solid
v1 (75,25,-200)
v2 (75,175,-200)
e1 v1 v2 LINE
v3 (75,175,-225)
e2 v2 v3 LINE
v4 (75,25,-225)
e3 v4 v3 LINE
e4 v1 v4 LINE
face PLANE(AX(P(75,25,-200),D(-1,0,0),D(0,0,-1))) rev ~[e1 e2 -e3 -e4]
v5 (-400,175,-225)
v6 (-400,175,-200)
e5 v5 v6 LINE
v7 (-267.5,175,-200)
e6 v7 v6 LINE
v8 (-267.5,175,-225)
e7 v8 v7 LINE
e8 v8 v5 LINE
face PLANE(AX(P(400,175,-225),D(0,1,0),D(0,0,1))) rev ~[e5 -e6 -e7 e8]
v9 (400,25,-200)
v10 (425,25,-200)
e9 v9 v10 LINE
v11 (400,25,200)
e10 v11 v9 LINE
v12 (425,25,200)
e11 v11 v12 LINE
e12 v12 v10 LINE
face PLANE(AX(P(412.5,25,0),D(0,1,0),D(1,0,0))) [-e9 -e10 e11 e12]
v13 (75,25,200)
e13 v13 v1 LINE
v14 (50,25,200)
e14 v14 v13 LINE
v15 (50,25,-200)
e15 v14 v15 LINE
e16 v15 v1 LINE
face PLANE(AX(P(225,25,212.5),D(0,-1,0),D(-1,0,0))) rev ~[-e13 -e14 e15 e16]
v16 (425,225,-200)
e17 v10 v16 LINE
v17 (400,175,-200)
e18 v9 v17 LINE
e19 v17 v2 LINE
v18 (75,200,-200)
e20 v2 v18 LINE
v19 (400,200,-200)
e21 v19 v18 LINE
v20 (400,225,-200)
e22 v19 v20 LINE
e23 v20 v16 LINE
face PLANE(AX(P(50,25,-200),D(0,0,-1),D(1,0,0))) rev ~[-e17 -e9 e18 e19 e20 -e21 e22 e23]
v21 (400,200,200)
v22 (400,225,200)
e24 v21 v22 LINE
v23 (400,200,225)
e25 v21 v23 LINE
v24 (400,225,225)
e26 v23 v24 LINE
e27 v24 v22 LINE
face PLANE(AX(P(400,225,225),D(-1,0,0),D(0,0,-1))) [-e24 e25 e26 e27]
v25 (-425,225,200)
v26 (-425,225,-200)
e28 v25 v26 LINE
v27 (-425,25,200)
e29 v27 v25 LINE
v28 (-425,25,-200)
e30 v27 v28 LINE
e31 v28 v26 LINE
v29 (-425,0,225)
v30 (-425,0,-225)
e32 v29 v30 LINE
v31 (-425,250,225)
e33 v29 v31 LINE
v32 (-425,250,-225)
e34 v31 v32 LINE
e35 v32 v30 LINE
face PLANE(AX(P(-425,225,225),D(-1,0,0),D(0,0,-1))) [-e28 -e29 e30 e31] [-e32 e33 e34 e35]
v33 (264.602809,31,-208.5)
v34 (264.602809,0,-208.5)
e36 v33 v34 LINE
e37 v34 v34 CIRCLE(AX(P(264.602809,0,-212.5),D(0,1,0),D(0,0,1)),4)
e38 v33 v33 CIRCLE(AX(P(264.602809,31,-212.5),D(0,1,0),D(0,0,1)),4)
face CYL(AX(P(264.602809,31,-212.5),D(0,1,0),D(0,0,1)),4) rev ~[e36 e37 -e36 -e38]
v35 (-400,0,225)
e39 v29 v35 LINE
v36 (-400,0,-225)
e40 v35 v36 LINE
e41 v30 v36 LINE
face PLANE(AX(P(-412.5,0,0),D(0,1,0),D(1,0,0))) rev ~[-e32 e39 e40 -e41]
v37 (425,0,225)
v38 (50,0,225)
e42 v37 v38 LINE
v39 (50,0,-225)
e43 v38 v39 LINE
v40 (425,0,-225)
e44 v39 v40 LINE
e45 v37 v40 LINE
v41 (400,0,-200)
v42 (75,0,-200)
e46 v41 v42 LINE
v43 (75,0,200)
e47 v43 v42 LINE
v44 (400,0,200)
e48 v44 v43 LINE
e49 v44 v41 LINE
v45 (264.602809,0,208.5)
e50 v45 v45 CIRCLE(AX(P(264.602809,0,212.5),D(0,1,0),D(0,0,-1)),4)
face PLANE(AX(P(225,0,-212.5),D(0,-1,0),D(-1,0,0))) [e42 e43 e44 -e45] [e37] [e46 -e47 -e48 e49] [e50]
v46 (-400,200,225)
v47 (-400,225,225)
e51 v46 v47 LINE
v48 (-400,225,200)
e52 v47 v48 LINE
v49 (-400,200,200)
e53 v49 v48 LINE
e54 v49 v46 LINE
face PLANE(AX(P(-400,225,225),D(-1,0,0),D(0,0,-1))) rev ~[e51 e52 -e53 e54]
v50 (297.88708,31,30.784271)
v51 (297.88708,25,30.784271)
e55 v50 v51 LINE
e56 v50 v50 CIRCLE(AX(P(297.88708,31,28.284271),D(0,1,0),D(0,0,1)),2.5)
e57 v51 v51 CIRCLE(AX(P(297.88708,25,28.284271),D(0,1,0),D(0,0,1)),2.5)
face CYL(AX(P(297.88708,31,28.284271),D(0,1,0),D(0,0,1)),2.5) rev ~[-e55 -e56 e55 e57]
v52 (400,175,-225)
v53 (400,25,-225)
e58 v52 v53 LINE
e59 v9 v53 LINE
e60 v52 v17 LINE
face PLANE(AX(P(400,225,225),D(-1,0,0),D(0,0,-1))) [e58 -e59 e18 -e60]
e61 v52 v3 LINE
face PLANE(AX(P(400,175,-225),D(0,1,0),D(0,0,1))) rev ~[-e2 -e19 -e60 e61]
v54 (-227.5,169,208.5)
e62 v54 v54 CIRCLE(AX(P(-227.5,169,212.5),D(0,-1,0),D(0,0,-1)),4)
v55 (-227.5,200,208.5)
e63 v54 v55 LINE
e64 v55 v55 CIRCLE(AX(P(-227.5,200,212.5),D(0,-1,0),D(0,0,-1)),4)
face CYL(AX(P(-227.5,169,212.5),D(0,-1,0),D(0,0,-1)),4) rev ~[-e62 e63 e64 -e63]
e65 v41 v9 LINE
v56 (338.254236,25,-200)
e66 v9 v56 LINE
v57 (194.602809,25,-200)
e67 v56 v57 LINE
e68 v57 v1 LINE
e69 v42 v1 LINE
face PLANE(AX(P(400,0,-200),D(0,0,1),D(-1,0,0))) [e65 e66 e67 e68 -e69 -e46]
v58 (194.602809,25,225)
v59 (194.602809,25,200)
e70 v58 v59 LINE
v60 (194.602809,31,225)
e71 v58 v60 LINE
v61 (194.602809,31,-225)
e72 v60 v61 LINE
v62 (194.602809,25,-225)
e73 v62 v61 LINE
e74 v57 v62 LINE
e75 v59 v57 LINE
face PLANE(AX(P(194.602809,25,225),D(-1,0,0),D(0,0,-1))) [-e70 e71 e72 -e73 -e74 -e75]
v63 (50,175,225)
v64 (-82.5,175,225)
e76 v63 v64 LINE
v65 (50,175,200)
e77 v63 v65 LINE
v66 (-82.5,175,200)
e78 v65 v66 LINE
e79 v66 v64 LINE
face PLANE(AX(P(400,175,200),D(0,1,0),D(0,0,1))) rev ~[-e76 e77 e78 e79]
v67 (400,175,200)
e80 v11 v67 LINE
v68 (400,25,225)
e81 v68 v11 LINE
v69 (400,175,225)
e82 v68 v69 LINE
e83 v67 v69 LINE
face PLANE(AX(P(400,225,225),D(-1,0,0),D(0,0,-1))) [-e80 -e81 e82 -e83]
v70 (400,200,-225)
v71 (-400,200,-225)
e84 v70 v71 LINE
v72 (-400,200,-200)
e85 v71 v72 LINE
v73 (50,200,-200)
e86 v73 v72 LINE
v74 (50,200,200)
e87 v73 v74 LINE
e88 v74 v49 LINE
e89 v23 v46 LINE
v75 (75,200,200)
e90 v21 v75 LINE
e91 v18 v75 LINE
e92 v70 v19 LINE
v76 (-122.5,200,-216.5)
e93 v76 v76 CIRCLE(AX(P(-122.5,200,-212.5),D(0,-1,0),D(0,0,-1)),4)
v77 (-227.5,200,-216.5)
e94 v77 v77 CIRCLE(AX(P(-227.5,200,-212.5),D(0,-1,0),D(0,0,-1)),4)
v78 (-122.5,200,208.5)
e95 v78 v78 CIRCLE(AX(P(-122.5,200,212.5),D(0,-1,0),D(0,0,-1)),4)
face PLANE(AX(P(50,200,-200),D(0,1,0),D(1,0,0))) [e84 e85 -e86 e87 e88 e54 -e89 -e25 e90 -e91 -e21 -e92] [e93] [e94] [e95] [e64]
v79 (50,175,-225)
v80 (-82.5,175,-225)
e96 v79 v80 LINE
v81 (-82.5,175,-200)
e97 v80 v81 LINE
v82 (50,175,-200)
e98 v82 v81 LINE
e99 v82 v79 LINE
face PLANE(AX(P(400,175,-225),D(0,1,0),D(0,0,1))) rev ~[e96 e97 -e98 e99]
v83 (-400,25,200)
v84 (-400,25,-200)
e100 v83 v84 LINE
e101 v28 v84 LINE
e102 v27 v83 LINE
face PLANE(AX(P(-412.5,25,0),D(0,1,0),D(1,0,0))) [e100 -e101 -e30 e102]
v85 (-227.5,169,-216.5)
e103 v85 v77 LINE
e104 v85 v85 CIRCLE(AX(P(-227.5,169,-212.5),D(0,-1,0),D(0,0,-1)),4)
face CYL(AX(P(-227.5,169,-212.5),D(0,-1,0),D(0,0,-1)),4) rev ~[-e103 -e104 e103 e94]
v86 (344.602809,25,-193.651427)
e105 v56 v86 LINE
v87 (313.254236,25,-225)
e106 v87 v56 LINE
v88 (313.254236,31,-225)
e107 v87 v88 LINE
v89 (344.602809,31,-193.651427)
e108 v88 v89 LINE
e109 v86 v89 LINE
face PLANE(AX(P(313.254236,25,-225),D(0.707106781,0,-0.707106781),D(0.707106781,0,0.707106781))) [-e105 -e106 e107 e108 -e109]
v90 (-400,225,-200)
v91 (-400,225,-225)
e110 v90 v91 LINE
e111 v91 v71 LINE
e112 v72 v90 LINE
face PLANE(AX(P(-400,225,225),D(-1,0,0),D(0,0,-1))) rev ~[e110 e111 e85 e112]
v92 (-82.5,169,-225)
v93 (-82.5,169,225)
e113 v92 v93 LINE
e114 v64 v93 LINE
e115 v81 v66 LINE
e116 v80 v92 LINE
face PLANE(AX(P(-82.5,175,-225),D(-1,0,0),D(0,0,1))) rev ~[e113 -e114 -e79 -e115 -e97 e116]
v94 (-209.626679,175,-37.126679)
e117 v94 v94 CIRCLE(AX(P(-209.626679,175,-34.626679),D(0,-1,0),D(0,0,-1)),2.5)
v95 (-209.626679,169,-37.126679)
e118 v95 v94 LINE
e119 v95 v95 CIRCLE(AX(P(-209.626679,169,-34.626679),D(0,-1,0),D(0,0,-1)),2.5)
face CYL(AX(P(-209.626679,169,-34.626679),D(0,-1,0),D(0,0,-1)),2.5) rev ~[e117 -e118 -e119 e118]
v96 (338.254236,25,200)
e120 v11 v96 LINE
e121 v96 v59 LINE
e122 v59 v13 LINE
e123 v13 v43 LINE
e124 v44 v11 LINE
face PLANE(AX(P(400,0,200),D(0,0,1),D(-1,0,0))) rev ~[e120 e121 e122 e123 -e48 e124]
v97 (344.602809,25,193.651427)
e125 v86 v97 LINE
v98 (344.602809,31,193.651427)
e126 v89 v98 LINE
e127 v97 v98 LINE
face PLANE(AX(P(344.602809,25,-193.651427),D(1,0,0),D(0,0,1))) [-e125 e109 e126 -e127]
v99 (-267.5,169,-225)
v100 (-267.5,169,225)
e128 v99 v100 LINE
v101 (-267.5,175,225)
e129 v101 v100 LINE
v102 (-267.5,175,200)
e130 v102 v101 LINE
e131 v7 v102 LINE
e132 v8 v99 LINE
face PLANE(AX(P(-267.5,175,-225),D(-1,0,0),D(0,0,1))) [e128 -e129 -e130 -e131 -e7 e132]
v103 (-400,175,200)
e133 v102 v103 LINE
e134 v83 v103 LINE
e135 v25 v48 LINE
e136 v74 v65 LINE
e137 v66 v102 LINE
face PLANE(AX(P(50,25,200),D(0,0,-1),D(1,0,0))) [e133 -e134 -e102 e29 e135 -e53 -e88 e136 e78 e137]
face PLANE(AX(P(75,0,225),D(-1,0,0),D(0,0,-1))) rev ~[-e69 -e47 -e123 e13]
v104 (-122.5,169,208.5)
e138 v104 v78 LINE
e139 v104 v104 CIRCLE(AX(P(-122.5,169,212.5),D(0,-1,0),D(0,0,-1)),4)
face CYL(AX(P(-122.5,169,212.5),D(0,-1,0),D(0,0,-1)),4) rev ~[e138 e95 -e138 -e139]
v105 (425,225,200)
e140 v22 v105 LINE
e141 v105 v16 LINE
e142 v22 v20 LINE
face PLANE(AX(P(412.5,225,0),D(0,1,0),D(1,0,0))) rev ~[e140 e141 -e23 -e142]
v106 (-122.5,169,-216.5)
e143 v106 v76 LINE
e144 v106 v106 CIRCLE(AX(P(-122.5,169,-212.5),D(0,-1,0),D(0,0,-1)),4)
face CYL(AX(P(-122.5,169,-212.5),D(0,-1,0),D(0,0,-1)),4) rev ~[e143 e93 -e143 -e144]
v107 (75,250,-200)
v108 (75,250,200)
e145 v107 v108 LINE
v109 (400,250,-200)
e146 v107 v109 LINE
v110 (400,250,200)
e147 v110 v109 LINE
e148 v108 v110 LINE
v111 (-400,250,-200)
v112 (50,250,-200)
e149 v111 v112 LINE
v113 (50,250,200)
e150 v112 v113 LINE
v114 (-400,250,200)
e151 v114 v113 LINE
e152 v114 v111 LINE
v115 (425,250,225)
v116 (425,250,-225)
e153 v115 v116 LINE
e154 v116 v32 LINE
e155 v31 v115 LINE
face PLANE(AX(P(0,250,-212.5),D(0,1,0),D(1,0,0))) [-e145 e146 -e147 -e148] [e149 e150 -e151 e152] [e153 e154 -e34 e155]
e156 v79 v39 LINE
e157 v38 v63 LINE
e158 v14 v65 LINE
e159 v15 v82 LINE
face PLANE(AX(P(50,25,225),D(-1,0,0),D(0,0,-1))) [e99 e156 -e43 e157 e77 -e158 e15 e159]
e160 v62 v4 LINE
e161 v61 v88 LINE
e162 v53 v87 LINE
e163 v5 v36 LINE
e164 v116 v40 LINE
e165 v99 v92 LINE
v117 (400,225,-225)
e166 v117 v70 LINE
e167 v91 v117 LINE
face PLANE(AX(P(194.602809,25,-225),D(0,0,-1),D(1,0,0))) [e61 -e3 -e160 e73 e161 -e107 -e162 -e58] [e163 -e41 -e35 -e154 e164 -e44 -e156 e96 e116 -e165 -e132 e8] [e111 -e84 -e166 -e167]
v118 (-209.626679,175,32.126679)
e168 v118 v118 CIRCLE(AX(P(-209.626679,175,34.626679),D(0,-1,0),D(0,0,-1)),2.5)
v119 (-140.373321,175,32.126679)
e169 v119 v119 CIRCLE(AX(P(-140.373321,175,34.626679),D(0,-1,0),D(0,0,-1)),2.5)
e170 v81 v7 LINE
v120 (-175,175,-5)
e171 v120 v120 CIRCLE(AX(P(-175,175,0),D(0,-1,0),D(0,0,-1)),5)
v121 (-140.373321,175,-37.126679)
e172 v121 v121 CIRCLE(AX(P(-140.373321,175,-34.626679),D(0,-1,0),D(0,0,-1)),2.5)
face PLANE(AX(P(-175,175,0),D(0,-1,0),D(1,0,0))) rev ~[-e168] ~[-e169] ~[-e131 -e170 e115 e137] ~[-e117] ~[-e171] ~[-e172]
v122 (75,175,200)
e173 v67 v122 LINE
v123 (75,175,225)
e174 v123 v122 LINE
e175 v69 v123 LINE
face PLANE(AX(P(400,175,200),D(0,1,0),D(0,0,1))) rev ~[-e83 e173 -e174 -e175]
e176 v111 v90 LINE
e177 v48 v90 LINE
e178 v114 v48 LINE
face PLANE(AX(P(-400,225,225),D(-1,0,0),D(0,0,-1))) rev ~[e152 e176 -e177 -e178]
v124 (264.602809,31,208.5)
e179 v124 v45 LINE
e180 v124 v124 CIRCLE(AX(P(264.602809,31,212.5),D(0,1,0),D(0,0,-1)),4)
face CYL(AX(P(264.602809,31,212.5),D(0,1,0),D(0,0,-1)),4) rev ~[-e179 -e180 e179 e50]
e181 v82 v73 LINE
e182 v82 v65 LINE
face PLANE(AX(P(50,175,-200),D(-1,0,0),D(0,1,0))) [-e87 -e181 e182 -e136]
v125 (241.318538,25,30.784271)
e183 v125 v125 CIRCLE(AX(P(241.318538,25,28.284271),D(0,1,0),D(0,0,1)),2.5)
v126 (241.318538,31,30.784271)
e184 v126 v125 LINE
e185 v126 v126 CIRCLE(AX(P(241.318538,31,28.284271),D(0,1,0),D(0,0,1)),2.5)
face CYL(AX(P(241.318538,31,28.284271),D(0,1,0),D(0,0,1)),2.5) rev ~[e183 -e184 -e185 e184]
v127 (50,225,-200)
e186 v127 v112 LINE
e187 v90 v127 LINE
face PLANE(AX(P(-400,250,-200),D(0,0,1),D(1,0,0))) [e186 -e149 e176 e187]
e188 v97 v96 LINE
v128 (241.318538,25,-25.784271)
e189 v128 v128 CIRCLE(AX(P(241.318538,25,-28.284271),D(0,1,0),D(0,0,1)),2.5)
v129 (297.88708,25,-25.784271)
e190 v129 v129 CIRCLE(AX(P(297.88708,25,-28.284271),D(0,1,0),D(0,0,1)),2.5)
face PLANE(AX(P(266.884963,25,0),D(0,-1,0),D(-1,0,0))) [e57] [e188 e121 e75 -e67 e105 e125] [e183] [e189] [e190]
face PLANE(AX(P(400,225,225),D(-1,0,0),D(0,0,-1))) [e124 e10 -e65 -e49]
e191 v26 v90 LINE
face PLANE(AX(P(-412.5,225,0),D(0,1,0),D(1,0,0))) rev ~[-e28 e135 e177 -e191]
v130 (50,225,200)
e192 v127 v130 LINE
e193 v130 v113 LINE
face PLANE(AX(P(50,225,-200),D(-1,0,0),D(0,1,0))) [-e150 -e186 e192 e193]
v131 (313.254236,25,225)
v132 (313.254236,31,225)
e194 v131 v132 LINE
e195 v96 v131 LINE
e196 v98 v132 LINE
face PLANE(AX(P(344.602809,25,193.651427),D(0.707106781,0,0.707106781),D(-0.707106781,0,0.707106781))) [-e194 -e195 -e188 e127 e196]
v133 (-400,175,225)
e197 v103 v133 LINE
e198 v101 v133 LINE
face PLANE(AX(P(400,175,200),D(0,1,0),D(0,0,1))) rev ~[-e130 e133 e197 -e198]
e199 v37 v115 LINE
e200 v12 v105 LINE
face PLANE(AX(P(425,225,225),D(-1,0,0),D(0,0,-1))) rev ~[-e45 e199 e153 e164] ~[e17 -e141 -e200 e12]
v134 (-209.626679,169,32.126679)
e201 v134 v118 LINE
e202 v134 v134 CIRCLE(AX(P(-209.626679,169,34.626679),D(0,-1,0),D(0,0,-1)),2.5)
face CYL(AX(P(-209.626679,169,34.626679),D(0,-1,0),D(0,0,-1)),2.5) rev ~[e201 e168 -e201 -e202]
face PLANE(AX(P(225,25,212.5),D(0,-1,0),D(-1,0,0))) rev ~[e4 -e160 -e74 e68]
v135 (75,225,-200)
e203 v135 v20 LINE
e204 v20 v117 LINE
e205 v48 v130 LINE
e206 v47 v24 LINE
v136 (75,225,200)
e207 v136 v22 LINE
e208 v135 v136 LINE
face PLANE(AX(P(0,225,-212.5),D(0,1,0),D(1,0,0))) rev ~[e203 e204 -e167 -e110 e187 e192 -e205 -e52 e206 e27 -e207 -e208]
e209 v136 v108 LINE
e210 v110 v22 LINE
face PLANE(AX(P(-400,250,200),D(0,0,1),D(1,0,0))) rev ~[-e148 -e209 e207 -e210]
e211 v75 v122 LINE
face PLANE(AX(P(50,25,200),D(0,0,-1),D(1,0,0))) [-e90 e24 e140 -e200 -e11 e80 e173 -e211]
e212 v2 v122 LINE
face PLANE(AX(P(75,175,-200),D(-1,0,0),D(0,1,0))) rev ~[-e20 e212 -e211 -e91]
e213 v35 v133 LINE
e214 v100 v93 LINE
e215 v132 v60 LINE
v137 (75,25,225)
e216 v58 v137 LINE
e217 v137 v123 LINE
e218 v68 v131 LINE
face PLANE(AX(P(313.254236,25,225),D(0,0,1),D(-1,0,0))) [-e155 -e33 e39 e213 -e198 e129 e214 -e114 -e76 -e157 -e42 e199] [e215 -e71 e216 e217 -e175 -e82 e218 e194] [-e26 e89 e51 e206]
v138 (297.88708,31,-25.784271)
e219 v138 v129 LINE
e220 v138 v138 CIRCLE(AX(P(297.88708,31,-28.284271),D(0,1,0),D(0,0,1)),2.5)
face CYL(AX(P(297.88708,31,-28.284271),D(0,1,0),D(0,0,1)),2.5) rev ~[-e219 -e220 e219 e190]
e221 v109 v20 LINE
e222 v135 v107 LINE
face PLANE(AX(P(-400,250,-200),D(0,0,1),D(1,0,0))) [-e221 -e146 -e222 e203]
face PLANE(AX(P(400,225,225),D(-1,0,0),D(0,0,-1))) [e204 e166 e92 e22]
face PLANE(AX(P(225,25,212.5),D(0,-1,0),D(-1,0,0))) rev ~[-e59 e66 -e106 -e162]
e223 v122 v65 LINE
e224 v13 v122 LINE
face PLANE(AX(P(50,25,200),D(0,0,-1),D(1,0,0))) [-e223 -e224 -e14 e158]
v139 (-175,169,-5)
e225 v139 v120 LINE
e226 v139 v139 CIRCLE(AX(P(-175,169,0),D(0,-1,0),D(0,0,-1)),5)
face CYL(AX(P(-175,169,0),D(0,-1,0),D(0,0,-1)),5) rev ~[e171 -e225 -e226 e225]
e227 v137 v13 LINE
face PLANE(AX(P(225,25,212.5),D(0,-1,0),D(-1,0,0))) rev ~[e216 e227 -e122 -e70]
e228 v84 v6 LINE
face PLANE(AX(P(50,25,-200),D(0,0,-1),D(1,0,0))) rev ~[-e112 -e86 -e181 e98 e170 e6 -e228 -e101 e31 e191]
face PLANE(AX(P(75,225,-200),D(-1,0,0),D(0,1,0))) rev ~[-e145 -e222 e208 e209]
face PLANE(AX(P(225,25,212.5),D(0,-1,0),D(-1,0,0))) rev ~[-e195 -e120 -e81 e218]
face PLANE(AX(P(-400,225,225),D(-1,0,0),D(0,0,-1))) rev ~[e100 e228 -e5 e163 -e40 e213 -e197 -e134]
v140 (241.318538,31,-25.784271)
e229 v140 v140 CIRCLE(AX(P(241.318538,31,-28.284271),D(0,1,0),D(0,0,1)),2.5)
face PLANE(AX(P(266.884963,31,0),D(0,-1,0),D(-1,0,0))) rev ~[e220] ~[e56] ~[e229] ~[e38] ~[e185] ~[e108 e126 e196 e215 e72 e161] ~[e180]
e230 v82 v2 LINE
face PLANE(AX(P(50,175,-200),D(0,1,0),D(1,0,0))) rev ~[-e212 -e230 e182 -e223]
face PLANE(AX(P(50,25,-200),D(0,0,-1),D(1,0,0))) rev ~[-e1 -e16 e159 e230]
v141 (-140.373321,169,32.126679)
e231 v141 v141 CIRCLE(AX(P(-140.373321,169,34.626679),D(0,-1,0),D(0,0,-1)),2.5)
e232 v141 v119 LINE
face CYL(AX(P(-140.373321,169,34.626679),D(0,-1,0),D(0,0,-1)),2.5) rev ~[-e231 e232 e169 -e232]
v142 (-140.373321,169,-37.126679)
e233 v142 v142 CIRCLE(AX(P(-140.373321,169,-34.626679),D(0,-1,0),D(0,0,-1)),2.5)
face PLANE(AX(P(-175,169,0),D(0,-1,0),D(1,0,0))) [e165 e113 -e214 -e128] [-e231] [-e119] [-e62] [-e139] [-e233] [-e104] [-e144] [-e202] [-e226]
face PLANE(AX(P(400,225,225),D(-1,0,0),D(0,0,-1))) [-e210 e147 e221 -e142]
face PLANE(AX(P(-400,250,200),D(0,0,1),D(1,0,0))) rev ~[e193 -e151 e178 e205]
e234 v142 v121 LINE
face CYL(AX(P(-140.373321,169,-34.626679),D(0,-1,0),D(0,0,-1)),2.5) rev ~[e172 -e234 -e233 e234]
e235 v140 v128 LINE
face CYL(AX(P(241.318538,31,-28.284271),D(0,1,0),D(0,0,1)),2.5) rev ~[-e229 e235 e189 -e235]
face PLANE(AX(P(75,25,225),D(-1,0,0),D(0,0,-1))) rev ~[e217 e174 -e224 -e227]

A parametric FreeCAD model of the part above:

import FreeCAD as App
import Part
import Sketcher
from FreeCAD import Vector


def add_polygon(sketch, points):
    """Adds a closed chain of lines whose ends are joined by coincident constraints."""
    first, n = sketch.GeometryCount, len(points)
    for a, b in zip(points, points[1:] + points[:1]):
        sketch.addGeometry(Part.LineSegment(App.Vector(*a, 0), App.Vector(*b, 0)), False)
    for i in range(n):
        sketch.addConstraint(Sketcher.Constraint("Coincident", first + i, 2, first + (i + 1) % n, 1))

doc = App.newDocument("Part")
body = doc.addObject("PartDesign::Body", "Body")

# Sketch on XZ plane
sketch1 = body.newObject("Sketcher::SketchObject", "Sketch")
sketch1.AttachmentSupport = (doc.getObject("XZ_Plane"), [""])
sketch1.MapMode = "FlatFace"
add_polygon(sketch1, [(-425, -225), (-425, 225), (-400, 225), (-400, -225)])  # lines 0-3
sketch1.addConstraint(Sketcher.Constraint("Vertical", 0))
sketch1.addConstraint(Sketcher.Constraint("Horizontal", 1))
sketch1.addConstraint(Sketcher.Constraint("Vertical", 2))
sketch1.addConstraint(Sketcher.Constraint("Horizontal", 3))
sketch1.addConstraint(Sketcher.Constraint("DistanceX", 1, 1, 1, 2, 25.0))
sketch1.addConstraint(Sketcher.Constraint("DistanceY", 0, 1, 0, 2, 450.0))
sketch1.addConstraint(Sketcher.Constraint("DistanceX", 0, 2, -1, 1, 425.0))
sketch1.addConstraint(Sketcher.Constraint("DistanceY", -1, 1, 0, 2, 225.0))
pad1 = body.newObject("PartDesign::Pad", "Pad")
pad1.Profile = sketch1
pad1.Length = 25
pad1.Reversed = True

# Sketch on XZ plane
sketch2 = body.newObject("Sketcher::SketchObject", "Sketch001")
sketch2.AttachmentSupport = (doc.getObject("XZ_Plane"), [""])
sketch2.MapMode = "FlatFace"
sketch2.AttachmentOffset = App.Placement(Vector(0, 0, -25), App.Rotation())
add_polygon(sketch2, [(-425, -225), (-425, -200), (-400, -200), (-400, -225)])  # lines 0-3
add_polygon(sketch2, [(-425, 200), (-425, 225), (-400, 225), (-400, 200)])  # lines 4-7
sketch2.addConstraint(Sketcher.Constraint("Vertical", 0))
sketch2.addConstraint(Sketcher.Constraint("Horizontal", 1))
sketch2.addConstraint(Sketcher.Constraint("Vertical", 2))
sketch2.addConstraint(Sketcher.Constraint("Horizontal", 3))
sketch2.addConstraint(Sketcher.Constraint("Vertical", 4))
sketch2.addConstraint(Sketcher.Constraint("Horizontal", 5))
sketch2.addConstraint(Sketcher.Constraint("Vertical", 6))
sketch2.addConstraint(Sketcher.Constraint("Horizontal", 7))
sketch2.addConstraint(Sketcher.Constraint("Symmetric", 3, 2, 4, 2, -1))
sketch2.addConstraint(Sketcher.Constraint("Symmetric", 1, 2, 6, 2, -1))
sketch2.addConstraint(Sketcher.Constraint("Equal", 7, 0))
sketch2.addConstraint(Sketcher.Constraint("DistanceX", 1, 1, 1, 2, 25.0))
sketch2.addConstraint(Sketcher.Constraint("DistanceX", 0, 2, -1, 1, 425.0))
sketch2.addConstraint(Sketcher.Constraint("DistanceY", 0, 2, -1, 1, 200.0))
pad2 = body.newObject("PartDesign::Pad", "Pad001")
pad2.Profile = sketch2
pad2.Length = 200
pad2.Reversed = True

# Sketch on XZ plane
sketch3 = body.newObject("Sketcher::SketchObject", "Sketch002")
sketch3.AttachmentSupport = (doc.getObject("XZ_Plane"), [""])
sketch3.MapMode = "FlatFace"
sketch3.AttachmentOffset = App.Placement(Vector(0, 0, -225), App.Rotation())
add_polygon(sketch3, [(-425, -225), (-425, 225), (-400, 225), (-400, -225)])  # lines 0-3
sketch3.addConstraint(Sketcher.Constraint("Vertical", 0))
sketch3.addConstraint(Sketcher.Constraint("Horizontal", 1))
sketch3.addConstraint(Sketcher.Constraint("Vertical", 2))
sketch3.addConstraint(Sketcher.Constraint("Horizontal", 3))
sketch3.addConstraint(Sketcher.Constraint("DistanceX", 1, 1, 1, 2, 25.0))
sketch3.addConstraint(Sketcher.Constraint("DistanceY", 0, 1, 0, 2, 450.0))
sketch3.addConstraint(Sketcher.Constraint("DistanceX", 0, 2, -1, 1, 425.0))
sketch3.addConstraint(Sketcher.Constraint("DistanceY", -1, 1, 0, 2, 225.0))
pad3 = body.newObject("PartDesign::Pad", "Pad002")
pad3.Profile = sketch3
pad3.Length = 25
pad3.Reversed = True
body2 = doc.addObject("PartDesign::Body", "Body001")

# Sketch on XZ plane
sketch4 = body2.newObject("Sketcher::SketchObject", "Sketch003")
sketch4.AttachmentSupport = (doc.getObject("XZ_Plane001"), [""])
sketch4.MapMode = "FlatFace"
add_polygon(sketch4, [(400, -225), (400, 225), (425, 225), (425, -225)])  # lines 0-3
sketch4.addConstraint(Sketcher.Constraint("Vertical", 0))
sketch4.addConstraint(Sketcher.Constraint("Horizontal", 1))
sketch4.addConstraint(Sketcher.Constraint("Vertical", 2))
sketch4.addConstraint(Sketcher.Constraint("Horizontal", 3))
sketch4.addConstraint(Sketcher.Constraint("DistanceX", 1, 1, 1, 2, 25.0))
sketch4.addConstraint(Sketcher.Constraint("DistanceY", 0, 1, 0, 2, 450.0))
sketch4.addConstraint(Sketcher.Constraint("DistanceX", -1, 1, 0, 2, 400.0))
sketch4.addConstraint(Sketcher.Constraint("DistanceY", -1, 1, 0, 2, 225.0))
pad4 = body2.newObject("PartDesign::Pad", "Pad003")
pad4.Profile = sketch4
pad4.Length = 25
pad4.Reversed = True

# Sketch on XZ plane
sketch5 = body2.newObject("Sketcher::SketchObject", "Sketch004")
sketch5.AttachmentSupport = (doc.getObject("XZ_Plane001"), [""])
sketch5.MapMode = "FlatFace"
sketch5.AttachmentOffset = App.Placement(Vector(0, 0, -25), App.Rotation())
add_polygon(sketch5, [(400, -225), (400, -200), (425, -200), (425, -225)])  # lines 0-3
add_polygon(sketch5, [(400, 200), (400, 225), (425, 225), (425, 200)])  # lines 4-7
sketch5.addConstraint(Sketcher.Constraint("Vertical", 0))
sketch5.addConstraint(Sketcher.Constraint("Horizontal", 1))
sketch5.addConstraint(Sketcher.Constraint("Vertical", 2))
sketch5.addConstraint(Sketcher.Constraint("Horizontal", 3))
sketch5.addConstraint(Sketcher.Constraint("Vertical", 4))
sketch5.addConstraint(Sketcher.Constraint("Horizontal", 5))
sketch5.addConstraint(Sketcher.Constraint("Vertical", 6))
sketch5.addConstraint(Sketcher.Constraint("Horizontal", 7))
sketch5.addConstraint(Sketcher.Constraint("Symmetric", 3, 2, 4, 2, -1))
sketch5.addConstraint(Sketcher.Constraint("Symmetric", 1, 2, 6, 2, -1))
sketch5.addConstraint(Sketcher.Constraint("Equal", 7, 0))
sketch5.addConstraint(Sketcher.Constraint("DistanceX", 1, 1, 1, 2, 25.0))
sketch5.addConstraint(Sketcher.Constraint("DistanceX", -1, 1, 0, 2, 400.0))
sketch5.addConstraint(Sketcher.Constraint("DistanceY", 0, 2, -1, 1, 200.0))
pad5 = body2.newObject("PartDesign::Pad", "Pad004")
pad5.Profile = sketch5
pad5.Length = 200
pad5.Reversed = True

# Sketch on XZ plane
sketch6 = body2.newObject("Sketcher::SketchObject", "Sketch005")
sketch6.AttachmentSupport = (doc.getObject("XZ_Plane001"), [""])
sketch6.MapMode = "FlatFace"
sketch6.AttachmentOffset = App.Placement(Vector(0, 0, -225), App.Rotation())
add_polygon(sketch6, [(400, -225), (400, 225), (425, 225), (425, -225)])  # lines 0-3
sketch6.addConstraint(Sketcher.Constraint("Vertical", 0))
sketch6.addConstraint(Sketcher.Constraint("Horizontal", 1))
sketch6.addConstraint(Sketcher.Constraint("Vertical", 2))
sketch6.addConstraint(Sketcher.Constraint("Horizontal", 3))
sketch6.addConstraint(Sketcher.Constraint("DistanceX", 1, 1, 1, 2, 25.0))
sketch6.addConstraint(Sketcher.Constraint("DistanceY", 0, 1, 0, 2, 450.0))
sketch6.addConstraint(Sketcher.Constraint("DistanceX", -1, 1, 0, 2, 400.0))
sketch6.addConstraint(Sketcher.Constraint("DistanceY", -1, 1, 0, 2, 225.0))
pad6 = body2.newObject("PartDesign::Pad", "Pad005")
pad6.Profile = sketch6
pad6.Length = 25
pad6.Reversed = True
body.AllowCompound = True
doc.recompute()

boolean = body.newObject("PartDesign::Boolean", "Boolean")
boolean.Type = "Fuse"
boolean.addObjects([body2])

# Sketch on XZ plane
sketch7 = body.newObject("Sketcher::SketchObject", "Sketch006")
sketch7.AttachmentSupport = (doc.getObject("XZ_Plane"), [""])
sketch7.MapMode = "FlatFace"
sketch7.AttachmentOffset = App.Placement(Vector(0, 0, -250), App.Rotation())
add_polygon(sketch7, [(-400, -225), (-400, -200), (400, -200), (400, -225)])  # lines 0-3
add_polygon(sketch7, [(-400, 200), (-400, 225), (400, 225), (400, 200)])  # lines 4-7
sketch7.addConstraint(Sketcher.Constraint("Vertical", 0))
sketch7.addConstraint(Sketcher.Constraint("Horizontal", 1))
sketch7.addConstraint(Sketcher.Constraint("Vertical", 2))
sketch7.addConstraint(Sketcher.Constraint("Horizontal", 3))
sketch7.addConstraint(Sketcher.Constraint("Vertical", 4))
sketch7.addConstraint(Sketcher.Constraint("Horizontal", 5))
sketch7.addConstraint(Sketcher.Constraint("Vertical", 6))
sketch7.addConstraint(Sketcher.Constraint("Horizontal", 7))
sketch7.addConstraint(Sketcher.Constraint("Symmetric", 2, 2, 4, 2, -1, 1))
sketch7.addConstraint(Sketcher.Constraint("Symmetric", 0, 2, 6, 2, -1, 1))
sketch7.addConstraint(Sketcher.Constraint("Vertical", 3, 2, 4, 2))
sketch7.addConstraint(Sketcher.Constraint("DistanceX", 1, 1, 1, 2, 800.0))
sketch7.addConstraint(Sketcher.Constraint("DistanceY", 0, 1, 0, 2, 25.0))
sketch7.addConstraint(Sketcher.Constraint("DistanceY", 0, 2, -1, 1, 200.0))
pad7 = body.newObject("PartDesign::Pad", "Pad006")
pad7.Profile = sketch7
pad7.Length = 25

# Sketch on XZ plane
sketch8 = body.newObject("Sketcher::SketchObject", "Sketch007")
sketch8.AttachmentSupport = (doc.getObject("XZ_Plane"), [""])
sketch8.MapMode = "FlatFace"
add_polygon(sketch8, [(400, -225), (400, -200), (50, -200), (50, -225)])  # lines 0-3
add_polygon(sketch8, [(400, 200), (400, 225), (50, 225), (50, 200)])  # lines 4-7
sketch8.addConstraint(Sketcher.Constraint("Vertical", 0))
sketch8.addConstraint(Sketcher.Constraint("Horizontal", 1))
sketch8.addConstraint(Sketcher.Constraint("Vertical", 2))
sketch8.addConstraint(Sketcher.Constraint("Horizontal", 3))
sketch8.addConstraint(Sketcher.Constraint("Vertical", 4))
sketch8.addConstraint(Sketcher.Constraint("Horizontal", 5))
sketch8.addConstraint(Sketcher.Constraint("Vertical", 6))
sketch8.addConstraint(Sketcher.Constraint("Horizontal", 7))
sketch8.addConstraint(Sketcher.Constraint("Symmetric", 3, 2, 4, 2, -1))
sketch8.addConstraint(Sketcher.Constraint("Symmetric", 1, 2, 6, 2, -1))
sketch8.addConstraint(Sketcher.Constraint("DistanceX", 1, 2, 1, 1, 350.0))
sketch8.addConstraint(Sketcher.Constraint("DistanceY", 0, 1, 0, 2, 25.0))
sketch8.addConstraint(Sketcher.Constraint("DistanceX", -1, 1, 0, 2, 400.0))
sketch8.addConstraint(Sketcher.Constraint("DistanceY", 0, 2, -1, 1, 200.0))
pad8 = body.newObject("PartDesign::Pad", "Pad007")
pad8.Profile = sketch8
pad8.Length = 25
pad8.Reversed = True

# Sketch on XZ plane
sketch9 = body.newObject("Sketcher::SketchObject", "Sketch008")
sketch9.AttachmentSupport = (doc.getObject("XZ_Plane"), [""])
sketch9.MapMode = "FlatFace"
add_polygon(sketch9, [(75, -200), (75, 225), (50, 225), (50, -200)])  # lines 0-3
sketch9.addConstraint(Sketcher.Constraint("Vertical", 0))
sketch9.addConstraint(Sketcher.Constraint("Horizontal", 1))
sketch9.addConstraint(Sketcher.Constraint("Vertical", 2))
sketch9.addConstraint(Sketcher.Constraint("Horizontal", 3))
sketch9.addConstraint(Sketcher.Constraint("DistanceX", 1, 2, 1, 1, 25.0))
sketch9.addConstraint(Sketcher.Constraint("DistanceY", 0, 1, 0, 2, 425.0))
sketch9.addConstraint(Sketcher.Constraint("DistanceX", -1, 1, 0, 2, 75.0))
sketch9.addConstraint(Sketcher.Constraint("DistanceY", -1, 1, 0, 2, 225.0))
pad9 = body.newObject("PartDesign::Pad", "Pad008")
pad9.Profile = sketch9
pad9.Length = 25
pad9.Reversed = True

# Sketch on YZ plane
sketch10 = body.newObject("Sketcher::SketchObject", "Sketch009")
sketch10.AttachmentSupport = (doc.getObject("YZ_Plane"), [""])
sketch10.MapMode = "FlatFace"
sketch10.AttachmentOffset = App.Placement(Vector(0, 0, 400), App.Rotation())
add_polygon(sketch10, [(200, 200), (175, 200), (175, 225), (200, 225)])  # lines 0-3
add_polygon(sketch10, [(200, -225), (175, -225), (175, -200), (200, -200)])  # lines 4-7
sketch10.addConstraint(Sketcher.Constraint("Horizontal", 0))
sketch10.addConstraint(Sketcher.Constraint("Vertical", 1))
sketch10.addConstraint(Sketcher.Constraint("Horizontal", 2))
sketch10.addConstraint(Sketcher.Constraint("Vertical", 3))
sketch10.addConstraint(Sketcher.Constraint("Horizontal", 4))
sketch10.addConstraint(Sketcher.Constraint("Vertical", 5))
sketch10.addConstraint(Sketcher.Constraint("Horizontal", 6))
sketch10.addConstraint(Sketcher.Constraint("Vertical", 7))
sketch10.addConstraint(Sketcher.Constraint("Symmetric", 1, 2, 4, 2, -1))
sketch10.addConstraint(Sketcher.Constraint("Symmetric", 3, 2, 6, 2, -1))
sketch10.addConstraint(Sketcher.Constraint("Equal", 6, 1))
sketch10.addConstraint(Sketcher.Constraint("DistanceX", 0, 2, 0, 1, 25.0))
sketch10.addConstraint(Sketcher.Constraint("DistanceX", -1, 1, 0, 2, 175.0))
sketch10.addConstraint(Sketcher.Constraint("DistanceY", -1, 1, 0, 2, 200.0))
pad10 = body.newObject("PartDesign::Pad", "Pad009")
pad10.Profile = sketch10
pad10.Length = 800
pad10.Reversed = True

# Sketch on XZ plane
sketch11 = body.newObject("Sketcher::SketchObject", "Sketch010")
sketch11.AttachmentSupport = (doc.getObject("XZ_Plane"), [""])
sketch11.MapMode = "FlatFace"
sketch11.AttachmentOffset = App.Placement(Vector(0, 0, -25), App.Rotation())
add_polygon(sketch11, [(50, -225), (50, -200), (75, -200), (75, -225)])  # lines 0-3
sketch11.addConstraint(Sketcher.Constraint("Vertical", 0))
sketch11.addConstraint(Sketcher.Constraint("Horizontal", 1))
sketch11.addConstraint(Sketcher.Constraint("Vertical", 2))
sketch11.addConstraint(Sketcher.Constraint("Horizontal", 3))
sketch11.addConstraint(Sketcher.Constraint("Equal", 3, 0))
sketch11.addConstraint(Sketcher.Constraint("DistanceX", 1, 1, 1, 2, 25.0))
sketch11.addConstraint(Sketcher.Constraint("DistanceX", -1, 1, 0, 2, 50.0))
sketch11.addConstraint(Sketcher.Constraint("DistanceY", 0, 2, -1, 1, 200.0))
pad11 = body.newObject("PartDesign::Pad", "Pad010")
pad11.Profile = sketch11
pad11.Type = "UpToFirst"
pad11.Reversed = True

# Sketch on XZ plane
sketch12 = body.newObject("Sketcher::SketchObject", "Sketch011")
sketch12.AttachmentSupport = (doc.getObject("XZ_Plane"), [""])
sketch12.MapMode = "FlatFace"
sketch12.AttachmentOffset = App.Placement(Vector(0, 0, -25), App.Rotation())
add_polygon(sketch12, [(50, 200), (50, 225), (75, 225), (75, 200)])  # lines 0-3
sketch12.addConstraint(Sketcher.Constraint("Vertical", 0))
sketch12.addConstraint(Sketcher.Constraint("Horizontal", 1))
sketch12.addConstraint(Sketcher.Constraint("Vertical", 2))
sketch12.addConstraint(Sketcher.Constraint("Horizontal", 3))
sketch12.addConstraint(Sketcher.Constraint("Equal", 3, 0))
sketch12.addConstraint(Sketcher.Constraint("DistanceX", 1, 1, 1, 2, 25.0))
sketch12.addConstraint(Sketcher.Constraint("DistanceX", -1, 1, 0, 2, 50.0))
sketch12.addConstraint(Sketcher.Constraint("DistanceY", -1, 1, 0, 2, 225.0))
pad12 = body.newObject("PartDesign::Pad", "Pad011")
pad12.Profile = sketch12
pad12.Type = "UpToFirst"
pad12.Reversed = True

# Sketch on XZ plane
sketch13 = body.newObject("Sketcher::SketchObject", "Sketch012")
sketch13.AttachmentSupport = (doc.getObject("XZ_Plane"), [""])
sketch13.MapMode = "FlatFace"
sketch13.AttachmentOffset = App.Placement(Vector(0, 0, -175), App.Rotation())
add_polygon(sketch13, [(-268, 225), (-268, -225), (-82, -225), (-82, 225)])  # lines 0-3
sketch13.addConstraint(Sketcher.Constraint("Vertical", 0))
sketch13.addConstraint(Sketcher.Constraint("Horizontal", 1))
sketch13.addConstraint(Sketcher.Constraint("Vertical", 2))
sketch13.addConstraint(Sketcher.Constraint("Horizontal", 3))
sketch13.addConstraint(Sketcher.Constraint("DistanceX", 1, 1, 1, 2, 185.0))
sketch13.addConstraint(Sketcher.Constraint("DistanceY", 0, 2, 0, 1, 450.0))
sketch13.addConstraint(Sketcher.Constraint("DistanceY", 0, 2, -1, 1, 225.0))
sketch13.addConstraint(Sketcher.Constraint("DistanceX", 0, 2, -1, 1, 267.5))
pad13 = body.newObject("PartDesign::Pad", "Pad012")
pad13.Profile = sketch13
pad13.Length = 6

# Sketch on XZ plane
sketch14 = body.newObject("Sketcher::SketchObject", "Sketch013")
sketch14.AttachmentSupport = (doc.getObject("XZ_Plane"), [""])
sketch14.MapMode = "FlatFace"
sketch14.AttachmentOffset = App.Placement(Vector(0, 0, -25), App.Rotation())
add_polygon(sketch14, [(313, -225), (195, -225), (195, 225), (313, 225), (345, 194), (345, -194)])  # lines 0-5
sketch14.addConstraint(Sketcher.Constraint("Horizontal", 0))
sketch14.addConstraint(Sketcher.Constraint("Vertical", 1))
sketch14.addConstraint(Sketcher.Constraint("Horizontal", 2))
sketch14.addConstraint(Sketcher.Constraint("Vertical", 4))
sketch14.addConstraint(Sketcher.Constraint("Symmetric", 2, 2, 5, 2, -1))
sketch14.addConstraint(Sketcher.Constraint("Perpendicular", 3, 5))
sketch14.addConstraint(Sketcher.Constraint("Equal", 3, 5))
sketch14.addConstraint(Sketcher.Constraint("DistanceY", 1, 1, 1, 2, 450.0))
sketch14.addConstraint(Sketcher.Constraint("DistanceX", 1, 2, 3, 2, 150.0))
sketch14.addConstraint(Sketcher.Constraint("DistanceX", 0, 2, 0, 1, 118.651427))
sketch14.addConstraint(Sketcher.Constraint("DistanceX", -1, 1, 0, 2, 194.602809))
pad14 = body.newObject("PartDesign::Pad", "Pad013")
pad14.Profile = sketch14
pad14.Length = 6
pad14.Reversed = True

# Sketch on XZ plane
sketch15 = body.newObject("Sketcher::SketchObject", "Sketch014")
sketch15.AttachmentSupport = (doc.getObject("XZ_Plane"), [""])
sketch15.MapMode = "FlatFace"
sketch15.AttachmentOffset = App.Placement(Vector(0, 0, -169), App.Rotation())
sketch15.addGeometry(Part.Circle(Vector(-227.5, 212.5, 0), Vector(0, 0, 1), 4), False)
sketch15.addConstraint(Sketcher.Constraint("Diameter", 0, 8.0))
sketch15.addConstraint(Sketcher.Constraint("DistanceX", 0, 3, -1, 1, 227.5))
sketch15.addConstraint(Sketcher.Constraint("DistanceY", -1, 1, 0, 3, 212.5))
pocket1 = body.newObject("PartDesign::Pocket", "Pocket")
pocket1.Profile = sketch15
pocket1.Type = "UpToFirst"

# Sketch on XZ plane
sketch16 = body.newObject("Sketcher::SketchObject", "Sketch015")
sketch16.AttachmentSupport = (doc.getObject("XZ_Plane"), [""])
sketch16.MapMode = "FlatFace"
sketch16.AttachmentOffset = App.Placement(Vector(0, 0, -169), App.Rotation())
sketch16.addGeometry(Part.Circle(Vector(-122.5, 212.5, 0), Vector(0, 0, 1), 4), False)
sketch16.addConstraint(Sketcher.Constraint("Diameter", 0, 8.0))
sketch16.addConstraint(Sketcher.Constraint("DistanceX", 0, 3, -1, 1, 122.5))
sketch16.addConstraint(Sketcher.Constraint("DistanceY", -1, 1, 0, 3, 212.5))
pocket2 = body.newObject("PartDesign::Pocket", "Pocket001")
pocket2.Profile = sketch16
pocket2.Type = "UpToFirst"

# Sketch on XZ plane
sketch17 = body.newObject("Sketcher::SketchObject", "Sketch016")
sketch17.AttachmentSupport = (doc.getObject("XZ_Plane"), [""])
sketch17.MapMode = "FlatFace"
sketch17.AttachmentOffset = App.Placement(Vector(0, 0, -169), App.Rotation())
sketch17.addGeometry(Part.Circle(Vector(-227.5, -212.5, 0), Vector(0, 0, 1), 4), False)
sketch17.addConstraint(Sketcher.Constraint("Diameter", 0, 8.0))
sketch17.addConstraint(Sketcher.Constraint("DistanceX", 0, 3, -1, 1, 227.5))
sketch17.addConstraint(Sketcher.Constraint("DistanceY", 0, 3, -1, 1, 212.5))
pocket3 = body.newObject("PartDesign::Pocket", "Pocket002")
pocket3.Profile = sketch17
pocket3.Type = "UpToFirst"

# Sketch on XZ plane
sketch18 = body.newObject("Sketcher::SketchObject", "Sketch017")
sketch18.AttachmentSupport = (doc.getObject("XZ_Plane"), [""])
sketch18.MapMode = "FlatFace"
sketch18.AttachmentOffset = App.Placement(Vector(0, 0, -169), App.Rotation())
sketch18.addGeometry(Part.Circle(Vector(-122.5, -212.5, 0), Vector(0, 0, 1), 4), False)
sketch18.addConstraint(Sketcher.Constraint("Diameter", 0, 8.0))
sketch18.addConstraint(Sketcher.Constraint("DistanceX", 0, 3, -1, 1, 122.5))
sketch18.addConstraint(Sketcher.Constraint("DistanceY", 0, 3, -1, 1, 212.5))
pocket4 = body.newObject("PartDesign::Pocket", "Pocket003")
pocket4.Profile = sketch18
pocket4.Type = "UpToFirst"

# Sketch on XZ plane
sketch19 = body.newObject("Sketcher::SketchObject", "Sketch018")
sketch19.AttachmentSupport = (doc.getObject("XZ_Plane"), [""])
sketch19.MapMode = "FlatFace"
sketch19.AttachmentOffset = App.Placement(Vector(0, 0, -31), App.Rotation())
sketch19.addGeometry(Part.Circle(Vector(264.6, -212.5, 0), Vector(0, 0, 1), 4), False)
sketch19.addConstraint(Sketcher.Constraint("Diameter", 0, 8.0))
sketch19.addConstraint(Sketcher.Constraint("DistanceY", 0, 3, -1, 1, 212.5))
sketch19.addConstraint(Sketcher.Constraint("DistanceX", -1, 1, 0, 3, 264.602809))
pocket5 = body.newObject("PartDesign::Pocket", "Pocket004")
pocket5.Profile = sketch19
pocket5.Type = "UpToFirst"
pocket5.Reversed = True

# Sketch on XZ plane
sketch20 = body.newObject("Sketcher::SketchObject", "Sketch019")
sketch20.AttachmentSupport = (doc.getObject("XZ_Plane"), [""])
sketch20.MapMode = "FlatFace"
sketch20.AttachmentOffset = App.Placement(Vector(0, 0, -31), App.Rotation())
sketch20.addGeometry(Part.Circle(Vector(264.6, 212.5, 0), Vector(0, 0, 1), 4), False)
sketch20.addConstraint(Sketcher.Constraint("Diameter", 0, 8.0))
sketch20.addConstraint(Sketcher.Constraint("DistanceY", -1, 1, 0, 3, 212.5))
sketch20.addConstraint(Sketcher.Constraint("DistanceX", -1, 1, 0, 3, 264.602809))
pocket6 = body.newObject("PartDesign::Pocket", "Pocket005")
pocket6.Profile = sketch20
pocket6.Type = "UpToFirst"
pocket6.Reversed = True

# Sketch on XZ plane
sketch21 = body.newObject("Sketcher::SketchObject", "Sketch020")
sketch21.AttachmentSupport = (doc.getObject("XZ_Plane"), [""])
sketch21.MapMode = "FlatFace"
sketch21.AttachmentOffset = App.Placement(Vector(0, 0, -169), App.Rotation())
sketch21.addGeometry(Part.Circle(Vector(-175, 0, 0), Vector(0, 0, 1), 5), False)
sketch21.addGeometry(Part.Circle(Vector(-209.6, 34.6, 0), Vector(0, 0, 1), 2.5), False)
sketch21.addGeometry(Part.Circle(Vector(-140.4, 34.6, 0), Vector(0, 0, 1), 2.5), False)
sketch21.addGeometry(Part.Circle(Vector(-140.4, -34.6, 0), Vector(0, 0, 1), 2.5), False)
sketch21.addGeometry(Part.Circle(Vector(-209.6, -34.6, 0), Vector(0, 0, 1), 2.5), False)
sketch21.addConstraint(Sketcher.Constraint("Equal", 1, 2))
sketch21.addConstraint(Sketcher.Constraint("Equal", 2, 3))
sketch21.addConstraint(Sketcher.Constraint("Equal", 3, 4))
sketch21.addConstraint(Sketcher.Constraint("Symmetric", 2, 3, 3, 3, -1))
sketch21.addConstraint(Sketcher.Constraint("Symmetric", 1, 3, 4, 3, -1))
sketch21.addConstraint(Sketcher.Constraint("PointOnObject", 0, 3, -1))
sketch21.addConstraint(Sketcher.Constraint("Horizontal", 1, 3, 2, 3))
sketch21.addConstraint(Sketcher.Constraint("Diameter", 0, 10.0))
sketch21.addConstraint(Sketcher.Constraint("Diameter", 1, 5.0))
sketch21.addConstraint(Sketcher.Constraint("DistanceX", 0, 3, -1, 1, 175.0))
sketch21.addConstraint(Sketcher.Constraint("DistanceX", 1, 3, -1, 1, 209.626679))
sketch21.addConstraint(Sketcher.Constraint("DistanceY", -1, 1, 1, 3, 34.626679))
sketch21.addConstraint(Sketcher.Constraint("DistanceX", 2, 3, -1, 1, 140.373321))
pocket7 = body.newObject("PartDesign::Pocket", "Pocket006")
pocket7.Profile = sketch21
pocket7.Length = 10

# Sketch on XY plane
sketch22 = body.newObject("Sketcher::SketchObject", "Sketch021")
sketch22.AttachmentSupport = (doc.getObject("XY_Plane"), [""])
sketch22.MapMode = "FlatFace"
sketch22.AttachmentOffset = App.Placement(Vector(0, 0, -200), App.Rotation())
add_polygon(sketch22, [(50, 200), (50, 175), (75, 175), (75, 200)])  # lines 0-3
sketch22.addConstraint(Sketcher.Constraint("Vertical", 0))
sketch22.addConstraint(Sketcher.Constraint("Horizontal", 1))
sketch22.addConstraint(Sketcher.Constraint("Vertical", 2))
sketch22.addConstraint(Sketcher.Constraint("Horizontal", 3))
sketch22.addConstraint(Sketcher.Constraint("Equal", 3, 0))
sketch22.addConstraint(Sketcher.Constraint("DistanceX", 1, 1, 1, 2, 25.0))
sketch22.addConstraint(Sketcher.Constraint("DistanceX", -1, 1, 0, 2, 50.0))
sketch22.addConstraint(Sketcher.Constraint("DistanceY", -1, 1, 0, 2, 175.0))
pad15 = body.newObject("PartDesign::Pad", "Pad014")
pad15.Profile = sketch22
pad15.Type = "UpToFirst"

# Sketch on XY plane
sketch23 = body.newObject("Sketcher::SketchObject", "Sketch022")
sketch23.AttachmentSupport = (doc.getObject("XY_Plane"), [""])
sketch23.MapMode = "FlatFace"
sketch23.AttachmentOffset = App.Placement(Vector(0, 0, -200), App.Rotation())
add_polygon(sketch23, [(50, 250), (50, 225), (75, 225), (75, 250)])  # lines 0-3
sketch23.addConstraint(Sketcher.Constraint("Vertical", 0))
sketch23.addConstraint(Sketcher.Constraint("Horizontal", 1))
sketch23.addConstraint(Sketcher.Constraint("Vertical", 2))
sketch23.addConstraint(Sketcher.Constraint("Horizontal", 3))
sketch23.addConstraint(Sketcher.Constraint("Equal", 3, 0))
sketch23.addConstraint(Sketcher.Constraint("DistanceX", 1, 1, 1, 2, 25.0))
sketch23.addConstraint(Sketcher.Constraint("DistanceX", -1, 1, 0, 2, 50.0))
sketch23.addConstraint(Sketcher.Constraint("DistanceY", -1, 1, 0, 2, 225.0))
pad16 = body.newObject("PartDesign::Pad", "Pad015")
pad16.Profile = sketch23
pad16.Type = "UpToFirst"

# Sketch on XZ plane
sketch24 = body.newObject("Sketcher::SketchObject", "Sketch023")
sketch24.AttachmentSupport = (doc.getObject("XZ_Plane"), [""])
sketch24.MapMode = "FlatFace"
sketch24.AttachmentOffset = App.Placement(Vector(0, 0, -31), App.Rotation())
sketch24.addGeometry(Part.Circle(Vector(241.3, -28.3, 0), Vector(0, 0, 1), 2.5), False)
sketch24.addGeometry(Part.Circle(Vector(297.9, -28.3, 0), Vector(0, 0, 1), 2.5), False)
sketch24.addGeometry(Part.Circle(Vector(297.9, 28.3, 0), Vector(0, 0, 1), 2.5), False)
sketch24.addGeometry(Part.Circle(Vector(241.3, 28.3, 0), Vector(0, 0, 1), 2.5), False)
sketch24.addConstraint(Sketcher.Constraint("Equal", 0, 1))
sketch24.addConstraint(Sketcher.Constraint("Equal", 1, 2))
sketch24.addConstraint(Sketcher.Constraint("Equal", 2, 3))
sketch24.addConstraint(Sketcher.Constraint("Symmetric", 1, 3, 2, 3, -1))
sketch24.addConstraint(Sketcher.Constraint("Symmetric", 0, 3, 3, 3, -1))
sketch24.addConstraint(Sketcher.Constraint("Horizontal", 0, 3, 1, 3))
sketch24.addConstraint(Sketcher.Constraint("Diameter", 0, 5.0))
sketch24.addConstraint(Sketcher.Constraint("DistanceY", 0, 3, -1, 1, 28.284271))
sketch24.addConstraint(Sketcher.Constraint("DistanceX", -1, 1, 1, 3, 297.88708))
sketch24.addConstraint(Sketcher.Constraint("DistanceX", -1, 1, 0, 3, 241.318538))
pocket8 = body.newObject("PartDesign::Pocket", "Pocket007")
pocket8.Profile = sketch24
pocket8.Length = 10
pocket8.Reversed = True

doc.recompute()
